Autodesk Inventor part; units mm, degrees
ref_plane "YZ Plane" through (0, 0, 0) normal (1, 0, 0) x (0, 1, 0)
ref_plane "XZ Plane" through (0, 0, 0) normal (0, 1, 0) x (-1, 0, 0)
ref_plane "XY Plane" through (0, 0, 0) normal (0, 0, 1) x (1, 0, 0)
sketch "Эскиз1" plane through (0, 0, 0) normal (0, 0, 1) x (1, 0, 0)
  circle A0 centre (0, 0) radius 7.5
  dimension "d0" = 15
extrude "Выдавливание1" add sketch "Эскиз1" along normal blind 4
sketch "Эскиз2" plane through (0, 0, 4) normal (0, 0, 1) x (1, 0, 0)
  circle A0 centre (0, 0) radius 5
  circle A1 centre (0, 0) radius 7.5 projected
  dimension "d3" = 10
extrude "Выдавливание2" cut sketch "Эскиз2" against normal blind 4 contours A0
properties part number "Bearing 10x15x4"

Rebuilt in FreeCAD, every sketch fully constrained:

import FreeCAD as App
import Part
import Sketcher

V = App.Vector

doc = App.newDocument("Part")
params = doc.addObject("Spreadsheet::Sheet", "Params")
for row, (alias, value) in enumerate([
    ("sketch1_diameter", "15 mm"),
    ("pad1_length", "4 mm"),
    ("sketch2_diameter", "10 mm"),
    ("pocket1_length", "4 mm"),
], start=1):
    params.set(f"A{row}", alias)
    params.set(f"B{row}", "=" + value)
    params.setAlias(f"B{row}", alias)

body = doc.addObject("PartDesign::Body", "Body")

sketch1 = body.newObject("Sketcher::SketchObject", "Sketch")
sketch1.AttachmentSupport = (doc.getObject("XY_Plane"), [""])
sketch1.MapMode = "FlatFace"
sketch1.addGeometry(Part.Circle(V(0, 0, 0), V(0, 0, 1), 8), False)
sketch1.addConstraint([
    Sketcher.Constraint("Coincident", 0, 3, -1, 1),
    Sketcher.Constraint("Diameter", 0, 15.0),
])
sketch1.setExpression("Constraints[1]", "Params.sketch1_diameter")
pad1 = body.newObject("PartDesign::Pad", "Pad")
pad1.Profile = sketch1
pad1.setExpression("Length", "Params.pad1_length")

sketch2 = body.newObject("Sketcher::SketchObject", "Sketch001")
sketch2.AttachmentSupport = (doc.getObject("XY_Plane"), [""])
sketch2.MapMode = "FlatFace"
sketch2.AttachmentOffset = App.Placement(V(0, 0, 4), App.Rotation())
sketch2.addGeometry(Part.Circle(V(0, 0, 0), V(0, 0, 1), 5), False)
sketch2.addConstraint([
    Sketcher.Constraint("Coincident", 0, 3, -1, 1),
    Sketcher.Constraint("Diameter", 0, 10.0),
])
sketch2.setExpression("Constraints[1]", "Params.sketch2_diameter")
pocket1 = body.newObject("PartDesign::Pocket", "Pocket")
pocket1.Profile = sketch2
pocket1.setExpression("Length", "Params.pocket1_length")

doc.recompute()
